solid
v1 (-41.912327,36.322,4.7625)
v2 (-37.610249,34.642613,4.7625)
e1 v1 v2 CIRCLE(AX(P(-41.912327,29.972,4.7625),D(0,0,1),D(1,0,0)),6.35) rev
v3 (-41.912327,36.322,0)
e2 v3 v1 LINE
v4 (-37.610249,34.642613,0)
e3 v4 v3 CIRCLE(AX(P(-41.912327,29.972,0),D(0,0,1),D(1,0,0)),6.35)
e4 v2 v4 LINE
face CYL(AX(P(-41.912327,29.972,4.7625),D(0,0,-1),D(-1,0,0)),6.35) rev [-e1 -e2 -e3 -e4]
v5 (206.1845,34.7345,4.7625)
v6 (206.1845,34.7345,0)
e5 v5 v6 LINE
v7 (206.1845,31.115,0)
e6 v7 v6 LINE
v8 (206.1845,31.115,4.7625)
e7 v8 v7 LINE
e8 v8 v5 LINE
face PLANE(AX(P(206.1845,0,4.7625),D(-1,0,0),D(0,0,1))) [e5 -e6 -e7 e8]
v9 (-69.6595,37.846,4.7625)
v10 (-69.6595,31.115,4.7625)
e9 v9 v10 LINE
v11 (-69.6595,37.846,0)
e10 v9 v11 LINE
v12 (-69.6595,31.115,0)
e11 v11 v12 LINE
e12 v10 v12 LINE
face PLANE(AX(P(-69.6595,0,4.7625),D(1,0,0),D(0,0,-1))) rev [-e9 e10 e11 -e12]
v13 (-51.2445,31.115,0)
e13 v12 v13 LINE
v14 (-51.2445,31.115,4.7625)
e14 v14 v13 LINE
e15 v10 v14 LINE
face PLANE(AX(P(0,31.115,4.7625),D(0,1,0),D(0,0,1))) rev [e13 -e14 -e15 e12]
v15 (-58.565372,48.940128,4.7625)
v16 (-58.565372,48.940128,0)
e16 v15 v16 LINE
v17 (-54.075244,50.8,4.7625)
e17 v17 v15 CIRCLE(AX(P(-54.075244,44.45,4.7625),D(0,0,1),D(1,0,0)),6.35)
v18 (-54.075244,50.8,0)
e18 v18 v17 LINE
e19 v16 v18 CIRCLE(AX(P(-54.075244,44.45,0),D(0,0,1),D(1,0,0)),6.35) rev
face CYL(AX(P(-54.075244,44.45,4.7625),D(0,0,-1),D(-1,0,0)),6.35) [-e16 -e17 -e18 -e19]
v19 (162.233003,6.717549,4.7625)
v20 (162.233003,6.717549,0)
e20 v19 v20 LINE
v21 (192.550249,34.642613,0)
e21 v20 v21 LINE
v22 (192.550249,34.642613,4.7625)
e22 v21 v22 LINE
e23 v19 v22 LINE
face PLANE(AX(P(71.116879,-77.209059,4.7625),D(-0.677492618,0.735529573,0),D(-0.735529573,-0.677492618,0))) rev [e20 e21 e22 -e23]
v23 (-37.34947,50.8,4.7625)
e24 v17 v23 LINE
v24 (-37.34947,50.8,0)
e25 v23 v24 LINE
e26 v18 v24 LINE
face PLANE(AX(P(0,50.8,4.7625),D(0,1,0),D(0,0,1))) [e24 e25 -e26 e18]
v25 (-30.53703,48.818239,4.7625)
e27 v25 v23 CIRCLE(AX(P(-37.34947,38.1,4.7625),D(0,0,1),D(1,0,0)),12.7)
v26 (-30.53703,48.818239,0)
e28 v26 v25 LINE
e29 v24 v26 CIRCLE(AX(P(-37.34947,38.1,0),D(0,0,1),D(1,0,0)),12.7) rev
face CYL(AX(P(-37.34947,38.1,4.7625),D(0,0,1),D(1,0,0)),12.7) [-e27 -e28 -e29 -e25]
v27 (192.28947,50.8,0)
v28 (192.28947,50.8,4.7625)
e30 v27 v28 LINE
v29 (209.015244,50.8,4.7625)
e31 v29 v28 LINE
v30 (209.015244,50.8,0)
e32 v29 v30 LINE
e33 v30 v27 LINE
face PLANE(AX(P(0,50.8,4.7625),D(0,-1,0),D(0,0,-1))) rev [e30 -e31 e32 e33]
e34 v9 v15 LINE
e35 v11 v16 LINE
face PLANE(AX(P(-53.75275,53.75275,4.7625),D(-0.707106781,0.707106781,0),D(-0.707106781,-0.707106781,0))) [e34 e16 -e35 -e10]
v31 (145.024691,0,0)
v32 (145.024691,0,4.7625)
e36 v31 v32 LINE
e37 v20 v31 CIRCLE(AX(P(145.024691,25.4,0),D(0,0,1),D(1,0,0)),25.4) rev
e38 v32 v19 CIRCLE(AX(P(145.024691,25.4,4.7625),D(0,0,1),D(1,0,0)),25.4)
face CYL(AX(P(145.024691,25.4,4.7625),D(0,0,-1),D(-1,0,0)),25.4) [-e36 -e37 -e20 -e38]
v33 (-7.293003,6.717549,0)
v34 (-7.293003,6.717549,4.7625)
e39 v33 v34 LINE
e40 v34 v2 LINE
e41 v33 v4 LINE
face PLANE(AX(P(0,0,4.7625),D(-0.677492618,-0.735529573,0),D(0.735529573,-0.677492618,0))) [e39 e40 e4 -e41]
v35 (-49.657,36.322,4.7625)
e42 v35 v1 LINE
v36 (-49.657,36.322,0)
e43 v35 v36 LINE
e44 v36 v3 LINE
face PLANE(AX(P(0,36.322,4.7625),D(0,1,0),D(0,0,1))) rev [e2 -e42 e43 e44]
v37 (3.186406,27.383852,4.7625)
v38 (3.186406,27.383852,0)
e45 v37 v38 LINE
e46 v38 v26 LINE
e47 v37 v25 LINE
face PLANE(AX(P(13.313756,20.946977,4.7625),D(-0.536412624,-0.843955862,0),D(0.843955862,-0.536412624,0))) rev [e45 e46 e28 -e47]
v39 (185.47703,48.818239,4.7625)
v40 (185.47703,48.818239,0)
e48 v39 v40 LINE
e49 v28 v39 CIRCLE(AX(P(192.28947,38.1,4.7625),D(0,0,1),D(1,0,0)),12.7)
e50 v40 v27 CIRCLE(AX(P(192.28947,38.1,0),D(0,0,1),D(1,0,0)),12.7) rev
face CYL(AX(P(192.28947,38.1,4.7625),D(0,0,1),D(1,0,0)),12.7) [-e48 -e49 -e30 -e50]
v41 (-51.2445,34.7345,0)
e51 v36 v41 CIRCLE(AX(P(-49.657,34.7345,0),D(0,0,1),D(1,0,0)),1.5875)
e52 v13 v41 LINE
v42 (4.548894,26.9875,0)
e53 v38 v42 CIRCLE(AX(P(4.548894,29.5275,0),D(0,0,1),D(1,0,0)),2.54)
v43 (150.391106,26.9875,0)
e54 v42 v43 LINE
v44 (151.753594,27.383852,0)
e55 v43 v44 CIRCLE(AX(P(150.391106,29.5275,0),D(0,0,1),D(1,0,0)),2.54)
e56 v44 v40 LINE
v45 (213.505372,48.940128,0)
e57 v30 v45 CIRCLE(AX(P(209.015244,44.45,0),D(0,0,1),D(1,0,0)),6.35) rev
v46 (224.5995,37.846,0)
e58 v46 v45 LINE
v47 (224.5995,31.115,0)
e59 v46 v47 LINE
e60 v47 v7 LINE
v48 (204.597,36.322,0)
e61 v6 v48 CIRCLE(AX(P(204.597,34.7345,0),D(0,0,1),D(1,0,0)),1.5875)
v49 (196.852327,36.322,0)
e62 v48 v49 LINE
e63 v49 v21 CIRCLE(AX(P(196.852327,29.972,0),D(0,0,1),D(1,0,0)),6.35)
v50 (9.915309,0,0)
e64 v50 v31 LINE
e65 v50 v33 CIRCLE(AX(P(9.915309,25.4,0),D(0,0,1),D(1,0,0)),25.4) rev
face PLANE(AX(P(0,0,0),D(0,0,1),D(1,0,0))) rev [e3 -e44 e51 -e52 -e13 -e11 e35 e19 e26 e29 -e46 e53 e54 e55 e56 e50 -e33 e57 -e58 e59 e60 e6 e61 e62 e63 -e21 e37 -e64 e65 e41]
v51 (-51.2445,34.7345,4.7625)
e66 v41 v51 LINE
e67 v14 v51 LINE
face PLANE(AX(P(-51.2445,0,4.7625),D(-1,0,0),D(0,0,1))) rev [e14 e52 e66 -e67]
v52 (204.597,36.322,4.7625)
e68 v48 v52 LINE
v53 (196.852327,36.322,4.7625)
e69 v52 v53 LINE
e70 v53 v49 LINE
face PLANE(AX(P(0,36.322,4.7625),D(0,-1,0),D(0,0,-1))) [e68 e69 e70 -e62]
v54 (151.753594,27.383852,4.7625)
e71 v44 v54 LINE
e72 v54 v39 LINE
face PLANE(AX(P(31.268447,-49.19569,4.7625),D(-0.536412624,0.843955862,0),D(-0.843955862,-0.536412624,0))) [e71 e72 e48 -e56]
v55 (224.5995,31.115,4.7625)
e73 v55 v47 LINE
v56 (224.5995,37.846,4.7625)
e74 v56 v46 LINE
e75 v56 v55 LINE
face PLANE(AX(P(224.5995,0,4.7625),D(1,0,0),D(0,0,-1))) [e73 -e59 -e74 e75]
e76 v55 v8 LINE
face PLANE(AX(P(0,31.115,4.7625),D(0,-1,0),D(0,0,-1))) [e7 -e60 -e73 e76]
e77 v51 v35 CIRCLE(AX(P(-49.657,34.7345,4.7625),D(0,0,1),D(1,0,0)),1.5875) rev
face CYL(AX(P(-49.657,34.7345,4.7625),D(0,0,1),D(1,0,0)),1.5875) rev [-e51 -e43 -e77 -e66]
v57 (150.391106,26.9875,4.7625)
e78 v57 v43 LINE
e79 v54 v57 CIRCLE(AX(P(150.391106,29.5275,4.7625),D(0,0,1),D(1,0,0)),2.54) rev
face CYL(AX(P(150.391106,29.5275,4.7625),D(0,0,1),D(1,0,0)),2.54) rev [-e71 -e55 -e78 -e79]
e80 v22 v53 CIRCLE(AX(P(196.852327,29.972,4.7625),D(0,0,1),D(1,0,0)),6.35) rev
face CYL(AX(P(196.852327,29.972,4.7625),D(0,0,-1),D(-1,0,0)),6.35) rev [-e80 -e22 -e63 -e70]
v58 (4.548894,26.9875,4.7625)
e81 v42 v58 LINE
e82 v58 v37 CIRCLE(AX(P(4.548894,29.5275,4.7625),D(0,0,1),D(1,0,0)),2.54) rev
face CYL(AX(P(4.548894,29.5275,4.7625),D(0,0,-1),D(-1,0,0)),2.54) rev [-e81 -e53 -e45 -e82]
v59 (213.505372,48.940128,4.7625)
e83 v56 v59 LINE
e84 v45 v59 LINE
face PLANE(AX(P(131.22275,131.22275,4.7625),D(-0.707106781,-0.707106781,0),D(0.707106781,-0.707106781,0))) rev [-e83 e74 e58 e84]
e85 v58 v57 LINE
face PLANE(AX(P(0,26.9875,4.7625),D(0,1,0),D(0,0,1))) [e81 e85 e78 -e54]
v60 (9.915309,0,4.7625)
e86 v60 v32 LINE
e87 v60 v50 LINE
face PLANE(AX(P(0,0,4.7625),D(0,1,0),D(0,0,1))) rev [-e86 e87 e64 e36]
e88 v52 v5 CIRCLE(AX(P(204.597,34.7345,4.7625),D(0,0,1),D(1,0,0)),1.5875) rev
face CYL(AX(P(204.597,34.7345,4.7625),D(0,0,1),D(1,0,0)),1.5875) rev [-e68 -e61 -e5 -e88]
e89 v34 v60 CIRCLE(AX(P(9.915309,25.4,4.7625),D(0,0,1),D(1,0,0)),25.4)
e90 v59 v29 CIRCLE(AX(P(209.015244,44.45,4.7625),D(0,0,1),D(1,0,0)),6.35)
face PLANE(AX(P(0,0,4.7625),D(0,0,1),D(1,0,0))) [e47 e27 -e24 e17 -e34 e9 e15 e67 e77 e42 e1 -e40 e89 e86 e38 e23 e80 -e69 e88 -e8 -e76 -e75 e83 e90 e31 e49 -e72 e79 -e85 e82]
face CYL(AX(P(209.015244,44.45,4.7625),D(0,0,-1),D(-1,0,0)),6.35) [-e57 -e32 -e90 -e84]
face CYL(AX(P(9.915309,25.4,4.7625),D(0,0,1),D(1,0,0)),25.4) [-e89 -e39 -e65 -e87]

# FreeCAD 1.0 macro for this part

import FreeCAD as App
import Part
import Sketcher
from FreeCAD import Vector
Q = App.Units.Quantity


def edges_at(feature, points):
    """Names of the edges that pass closest to the given points."""
    edges = feature.Shape.Edges
    near = lambda p: min(range(len(edges)), key=lambda i: edges[i].distToShape(Part.Vertex(*p))[0])
    return sorted({f"Edge{near(p) + 1}" for p in points})

doc = App.newDocument("Part")
params = doc.addObject("Spreadsheet::Sheet", "Params")
for row, (alias, value) in enumerate([
    ("sketch1_width", "6.1 in"),
    ("sketch1_width2", "5.8 in"),
    ("sketch1_width3", "0.465 in"),
    ("sketch1_width4", "0.725 in"),
    ("sketch1_height", "0.205 in"),
    ("pad1_length", "0.1875 in"),
    ("fillet_radius", "1 in"),
    ("fillet2_radius", "0.1 in"),
    ("fillet3_radius", "0.25 in"),
    ("fillet4_radius", "0.5 in"),
    ("fillet5_radius", "0.0625 in"),
], start=1):
    params.set(f"A{row}", alias)
    params.set(f"B{row}", "=" + value)
    params.setAlias(f"B{row}", alias)

body = doc.addObject("PartDesign::Body", "Body")

# Sketch on XY plane
sketch1 = body.newObject("Sketcher::SketchObject", "Sketch")
sketch1.AttachmentSupport = (doc.getObject("XY_Plane"), [""])
sketch1.MapMode = "FlatFace"
sketch1.addGeometry([
    Part.LineSegment(Vector(0, 0, 0), Vector(155, 0, 0)),  # 0
    Part.LineSegment(Vector(155, 0, 0), Vector(194, 36, 0)),  # 1
    Part.LineSegment(Vector(194, 36, 0), Vector(206, 36, 0)),  # 2
    Part.LineSegment(Vector(206, 36, 0), Vector(206, 31, 0)),  # 3
    Part.LineSegment(Vector(206, 31, 0), Vector(225, 31, 0)),  # 4
    Part.LineSegment(Vector(225, 31, 0), Vector(225, 38, 0)),  # 5
    Part.LineSegment(Vector(225, 38, 0), Vector(212, 51, 0)),  # 6
    Part.LineSegment(Vector(212, 51, 0), Vector(189, 51, 0)),  # 7
    Part.LineSegment(Vector(189, 51, 0), Vector(151, 27, 0)),  # 8
    Part.LineSegment(Vector(151, 27, 0), Vector(4, 27, 0)),  # 9
    Part.LineSegment(Vector(4, 27, 0), Vector(-34, 51, 0)),  # 10
    Part.LineSegment(Vector(-34, 51, 0), Vector(-57, 51, 0)),  # 11
    Part.LineSegment(Vector(-57, 51, 0), Vector(-70, 38, 0)),  # 12
    Part.LineSegment(Vector(-70, 38, 0), Vector(-70, 31, 0)),  # 13
    Part.LineSegment(Vector(-70, 31, 0), Vector(-51, 31, 0)),  # 14
    Part.LineSegment(Vector(-51, 31, 0), Vector(-51, 36, 0)),  # 15
    Part.LineSegment(Vector(-51, 36, 0), Vector(-39, 36, 0)),  # 16
    Part.LineSegment(Vector(-39, 36, 0), Vector(0, 0, 0)),  # 17
], False)
sketch1.addConstraint([
    Sketcher.Constraint("Coincident", 0, 2, 1, 1),
    Sketcher.Constraint("Coincident", 1, 2, 2, 1),
    Sketcher.Constraint("Coincident", 2, 2, 3, 1),
    Sketcher.Constraint("Coincident", 3, 2, 4, 1),
    Sketcher.Constraint("Coincident", 4, 2, 5, 1),
    Sketcher.Constraint("Coincident", 5, 2, 6, 1),
    Sketcher.Constraint("Coincident", 6, 2, 7, 1),
    Sketcher.Constraint("Coincident", 7, 2, 8, 1),
    Sketcher.Constraint("Coincident", 8, 2, 9, 1),
    Sketcher.Constraint("Coincident", 9, 2, 10, 1),
    Sketcher.Constraint("Coincident", 10, 2, 11, 1),
    Sketcher.Constraint("Coincident", 11, 2, 12, 1),
    Sketcher.Constraint("Coincident", 12, 2, 13, 1),
    Sketcher.Constraint("Coincident", 13, 2, 14, 1),
    Sketcher.Constraint("Coincident", 14, 2, 15, 1),
    Sketcher.Constraint("Coincident", 15, 2, 16, 1),
    Sketcher.Constraint("Coincident", 16, 2, 17, 1),
    Sketcher.Constraint("Coincident", 17, 2, 0, 1),
    Sketcher.Constraint("Horizontal", 0),
    Sketcher.Constraint("Horizontal", 2),
    Sketcher.Constraint("Vertical", 3),
    Sketcher.Constraint("Horizontal", 4),
    Sketcher.Constraint("Vertical", 5),
    Sketcher.Constraint("Horizontal", 7),
    Sketcher.Constraint("Horizontal", 9),
    Sketcher.Constraint("Horizontal", 11),
    Sketcher.Constraint("Vertical", 13),
    Sketcher.Constraint("Horizontal", 14),
    Sketcher.Constraint("Vertical", 15),
    Sketcher.Constraint("Horizontal", 16),
    Sketcher.Constraint("Coincident", 17, 2, -1, 1),
    Sketcher.Constraint("Perpendicular", 6, 12),
    Sketcher.Constraint("Horizontal", 7, 2, 10, 2),
    Sketcher.Constraint("Horizontal", 5, 2, 12, 2),
    Sketcher.Constraint("Horizontal", 4, 2, 13, 2),
    Sketcher.Constraint("Horizontal", 2, 2, 15, 2),
    Sketcher.Constraint("Equal", 7, 11),
    Sketcher.Constraint("Equal", 4, 14),
    Sketcher.Constraint("Equal", 2, 16),
    Sketcher.Constraint("Equal", 8, 10),
    Sketcher.Constraint("Equal", 6, 12),
    Sketcher.Constraint("Equal", 1, 17),
    Sketcher.Constraint("DistanceX", 0, 1, 0, 2, Q("6.1 in")),
    Sketcher.Constraint("DistanceX", 9, 2, 9, 1, Q("5.8 in")),
    Sketcher.Constraint("DistanceY", -1, 1, 6, 2, Q("2 in")),
    Sketcher.Constraint("DistanceX", 2, 1, 2, 2, Q("0.465 in")),
    Sketcher.Constraint("DistanceX", 4, 1, 4, 2, Q("0.725 in")),
    Sketcher.Constraint("DistanceY", 3, 2, 3, 1, Q("0.205 in")),
    Sketcher.Constraint("DistanceY", 5, 1, 5, 2, Q("0.265 in")),
    Sketcher.Constraint("DistanceY", -1, 1, 1, 2, Q("1.43 in")),
    Sketcher.Constraint("DistanceX", 10, 2, 7, 2, Q("8.75 in")),
    Sketcher.Constraint("DistanceX", 7, 2, 7, 1, Q("0.9075 in")),
    Sketcher.Constraint("DistanceY", -1, 1, 8, 2, Q("1.0625 in")),
])
sketch1.setExpression("Constraints[42]", "Params.sketch1_width")
sketch1.setExpression("Constraints[43]", "Params.sketch1_width2")
sketch1.setExpression("Constraints[45]", "Params.sketch1_width3")
sketch1.setExpression("Constraints[46]", "Params.sketch1_width4")
sketch1.setExpression("Constraints[47]", "Params.sketch1_height")
pad1 = body.newObject("PartDesign::Pad", "Pad")
pad1.Profile = sketch1
pad1.setExpression("Length", "Params.pad1_length")
doc.recompute()

fillet = body.newObject("PartDesign::Fillet", "Fillet")
fillet.Base = (pad1, edges_at(pad1, [(154.94, 0, 2.381), (0, 0, 2.381)]))
fillet.setExpression("Radius", "Params.fillet_radius")
doc.recompute()

fillet2 = body.newObject("PartDesign::Fillet", "Fillet001")
fillet2.Base = (fillet, edges_at(fillet, [(3.81, 26.988, 2.381), (151.13, 26.988, 2.381)]))
fillet2.setExpression("Radius", "Params.fillet2_radius")
doc.recompute()

fillet3 = body.newObject("PartDesign::Fillet", "Fillet002")
fillet3.Base = (fillet2, edges_at(fillet2, [
    (211.645, 50.8, 2.381),
    (194.374, 36.322, 2.381),
    (-39.434, 36.322, 2.381),
    (-56.706, 50.8, 2.381),
]))
fillet3.setExpression("Radius", "Params.fillet3_radius")
doc.recompute()

fillet4 = body.newObject("PartDesign::Fillet", "Fillet003")
fillet4.Base = (fillet3, edges_at(fillet3, [(188.595, 50.8, 2.381), (-33.655, 50.8, 2.381)]))
fillet4.setExpression("Radius", "Params.fillet4_radius")
doc.recompute()

fillet5 = body.newObject("PartDesign::Fillet", "Fillet004")
fillet5.Base = (fillet4, edges_at(fillet4, [(206.185, 36.322, 2.381), (-51.245, 36.322, 2.381)]))
fillet5.setExpression("Radius", "Params.fillet5_radius")

doc.recompute()
